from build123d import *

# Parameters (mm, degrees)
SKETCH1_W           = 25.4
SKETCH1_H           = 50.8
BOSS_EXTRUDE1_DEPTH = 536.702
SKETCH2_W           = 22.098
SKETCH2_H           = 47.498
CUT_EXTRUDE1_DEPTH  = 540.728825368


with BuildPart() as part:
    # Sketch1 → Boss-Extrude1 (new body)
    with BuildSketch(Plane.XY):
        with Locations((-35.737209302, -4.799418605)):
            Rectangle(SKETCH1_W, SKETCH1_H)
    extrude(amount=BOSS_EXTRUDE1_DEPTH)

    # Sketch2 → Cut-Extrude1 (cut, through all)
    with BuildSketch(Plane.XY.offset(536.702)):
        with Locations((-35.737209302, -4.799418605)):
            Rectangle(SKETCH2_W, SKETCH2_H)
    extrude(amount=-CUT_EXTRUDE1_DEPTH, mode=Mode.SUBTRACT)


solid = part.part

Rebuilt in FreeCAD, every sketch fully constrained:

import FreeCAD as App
import Part
import Sketcher
from FreeCAD import Vector
Q = App.Units.Quantity

doc = App.newDocument("Part")
body = doc.addObject("PartDesign::Body", "Body")

sketch1 = body.newObject("Sketcher::SketchObject", "Sketch")
sketch1.AttachmentSupport = (doc.getObject("XY_Plane"), [""])
sketch1.MapMode = "FlatFace"
sketch1.addGeometry(Part.LineSegment(Vector(-48, 21, 0), Vector(-48, -30, 0)), False)
sketch1.addGeometry(Part.LineSegment(Vector(-48, -30, 0), Vector(-23, -30, 0)), False)
sketch1.addGeometry(Part.LineSegment(Vector(-23, -30, 0), Vector(-23, 21, 0)), False)
sketch1.addGeometry(Part.LineSegment(Vector(-23, 21, 0), Vector(-48, 21, 0)), False)
sketch1.addConstraint(Sketcher.Constraint("Coincident", 0, 2, 1, 1))
sketch1.addConstraint(Sketcher.Constraint("Coincident", 1, 2, 2, 1))
sketch1.addConstraint(Sketcher.Constraint("Coincident", 2, 2, 3, 1))
sketch1.addConstraint(Sketcher.Constraint("Coincident", 3, 2, 0, 1))
sketch1.addConstraint(Sketcher.Constraint("Vertical", 0))
sketch1.addConstraint(Sketcher.Constraint("Horizontal", 1))
sketch1.addConstraint(Sketcher.Constraint("Vertical", 2))
sketch1.addConstraint(Sketcher.Constraint("Horizontal", 3))
sketch1.addConstraint(Sketcher.Constraint("DistanceX", 1, 1, 1, 2, Q("1 in")))
sketch1.addConstraint(Sketcher.Constraint("DistanceY", 0, 2, 0, 1, Q("2 in")))
sketch1.addConstraint(Sketcher.Constraint("DistanceX", 0, 2, -1, 1, 48.437209))
sketch1.addConstraint(Sketcher.Constraint("DistanceY", 0, 2, -1, 1, 30.199419))
pad1 = body.newObject("PartDesign::Pad", "Pad")
pad1.Profile = sketch1
pad1.Length = Q("21.13 in")

sketch2 = body.newObject("Sketcher::SketchObject", "Sketch001")
sketch2.AttachmentSupport = (doc.getObject("XY_Plane"), [""])
sketch2.MapMode = "FlatFace"
sketch2.AttachmentOffset = App.Placement(Vector(0, 0, 21.13 * 25.4), App.Rotation())
sketch2.addGeometry(Part.LineSegment(Vector(-47, 19, 0), Vector(-47, -29, 0)), False)
sketch2.addGeometry(Part.LineSegment(Vector(-47, -29, 0), Vector(-25, -29, 0)), False)
sketch2.addGeometry(Part.LineSegment(Vector(-25, -29, 0), Vector(-25, 19, 0)), False)
sketch2.addGeometry(Part.LineSegment(Vector(-25, 19, 0), Vector(-47, 19, 0)), False)
sketch2.addConstraint(Sketcher.Constraint("Coincident", 0, 2, 1, 1))
sketch2.addConstraint(Sketcher.Constraint("Coincident", 1, 2, 2, 1))
sketch2.addConstraint(Sketcher.Constraint("Coincident", 2, 2, 3, 1))
sketch2.addConstraint(Sketcher.Constraint("Coincident", 3, 2, 0, 1))
sketch2.addConstraint(Sketcher.Constraint("Vertical", 0))
sketch2.addConstraint(Sketcher.Constraint("Horizontal", 1))
sketch2.addConstraint(Sketcher.Constraint("Vertical", 2))
sketch2.addConstraint(Sketcher.Constraint("Horizontal", 3))
sketch2.addConstraint(Sketcher.Constraint("DistanceX", 1, 1, 1, 2, Q("0.87 in")))
sketch2.addConstraint(Sketcher.Constraint("DistanceY", 0, 2, 0, 1, Q("1.87 in")))
sketch2.addConstraint(Sketcher.Constraint("DistanceX", 0, 2, -1, 1, 46.786209))
sketch2.addConstraint(Sketcher.Constraint("DistanceY", 0, 2, -1, 1, 28.548419))
pocket1 = body.newObject("PartDesign::Pocket", "Pocket")
pocket1.Profile = sketch2
pocket1.Type = "ThroughAll"

doc.recompute()
